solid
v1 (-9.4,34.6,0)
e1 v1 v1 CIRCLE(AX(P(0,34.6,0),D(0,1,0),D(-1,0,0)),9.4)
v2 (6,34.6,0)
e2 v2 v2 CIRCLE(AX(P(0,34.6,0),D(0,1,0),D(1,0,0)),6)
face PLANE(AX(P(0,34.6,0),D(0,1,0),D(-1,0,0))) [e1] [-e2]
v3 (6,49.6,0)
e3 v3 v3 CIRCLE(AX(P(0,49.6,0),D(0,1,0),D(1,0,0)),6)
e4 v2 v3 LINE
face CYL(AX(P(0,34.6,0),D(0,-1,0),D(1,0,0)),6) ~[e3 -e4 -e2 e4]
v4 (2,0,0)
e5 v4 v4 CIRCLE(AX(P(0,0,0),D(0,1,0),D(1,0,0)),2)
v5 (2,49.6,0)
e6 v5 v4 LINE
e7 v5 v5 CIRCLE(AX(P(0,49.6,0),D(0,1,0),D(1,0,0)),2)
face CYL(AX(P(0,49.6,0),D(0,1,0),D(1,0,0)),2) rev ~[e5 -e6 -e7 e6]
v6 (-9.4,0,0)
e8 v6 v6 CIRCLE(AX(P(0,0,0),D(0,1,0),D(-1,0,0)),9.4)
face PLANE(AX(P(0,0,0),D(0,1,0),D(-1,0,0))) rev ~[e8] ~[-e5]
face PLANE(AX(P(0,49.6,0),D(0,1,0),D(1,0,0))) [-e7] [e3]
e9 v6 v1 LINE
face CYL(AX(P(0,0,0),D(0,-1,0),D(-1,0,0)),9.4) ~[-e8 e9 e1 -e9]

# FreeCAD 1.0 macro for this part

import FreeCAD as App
import Part
import Sketcher

doc = App.newDocument("Part")
body = doc.addObject("PartDesign::Body", "Body")

sketch1 = body.newObject("Sketcher::SketchObject", "Sketch")
sketch1.AttachmentSupport = (doc.getObject("XZ_Plane"), [""])
sketch1.MapMode = "FlatFace"
sketch1.addGeometry(Part.Circle(App.Vector(0, 0, 0), App.Vector(0, 0, 1), 9), False)
sketch1.addConstraint([
    Sketcher.Constraint("Coincident", 0, 3, -1, 1),
    Sketcher.Constraint("Diameter", 0, 18.8),
])
pad1 = body.newObject("PartDesign::Pad", "Pad")
pad1.Profile = sketch1
pad1.Length = 34.6
pad1.Reversed = True

sketch2 = body.newObject("Sketcher::SketchObject", "Sketch001")
sketch2.AttachmentSupport = (doc.getObject("XZ_Plane"), [""])
sketch2.MapMode = "FlatFace"
sketch2.AttachmentOffset = App.Placement(App.Vector(0, 0, -34.6), App.Rotation())
sketch2.addGeometry(Part.Circle(App.Vector(0, 0, 0), App.Vector(0, 0, 1), 6), False)
sketch2.addConstraint([
    Sketcher.Constraint("Coincident", 0, 3, -1, 1),
    Sketcher.Constraint("Diameter", 0, 12.0),
])
pad2 = body.newObject("PartDesign::Pad", "Pad001")
pad2.Profile = sketch2
pad2.Length = 15
pad2.Reversed = True

sketch3 = body.newObject("Sketcher::SketchObject", "Sketch002")
sketch3.AttachmentSupport = (doc.getObject("XZ_Plane"), [""])
sketch3.MapMode = "FlatFace"
sketch3.AttachmentOffset = App.Placement(App.Vector(0, 0, -49.6), App.Rotation())
sketch3.addGeometry(Part.Circle(App.Vector(0, 0, 0), App.Vector(0, 0, 1), 2), False)
sketch3.addConstraint([
    Sketcher.Constraint("Coincident", 0, 3, -1, 1),
    Sketcher.Constraint("Diameter", 0, 4.0),
])
pocket1 = body.newObject("PartDesign::Pocket", "Pocket")
pocket1.Profile = sketch3
pocket1.Length = 50
pocket1.Reversed = True

doc.recompute()
